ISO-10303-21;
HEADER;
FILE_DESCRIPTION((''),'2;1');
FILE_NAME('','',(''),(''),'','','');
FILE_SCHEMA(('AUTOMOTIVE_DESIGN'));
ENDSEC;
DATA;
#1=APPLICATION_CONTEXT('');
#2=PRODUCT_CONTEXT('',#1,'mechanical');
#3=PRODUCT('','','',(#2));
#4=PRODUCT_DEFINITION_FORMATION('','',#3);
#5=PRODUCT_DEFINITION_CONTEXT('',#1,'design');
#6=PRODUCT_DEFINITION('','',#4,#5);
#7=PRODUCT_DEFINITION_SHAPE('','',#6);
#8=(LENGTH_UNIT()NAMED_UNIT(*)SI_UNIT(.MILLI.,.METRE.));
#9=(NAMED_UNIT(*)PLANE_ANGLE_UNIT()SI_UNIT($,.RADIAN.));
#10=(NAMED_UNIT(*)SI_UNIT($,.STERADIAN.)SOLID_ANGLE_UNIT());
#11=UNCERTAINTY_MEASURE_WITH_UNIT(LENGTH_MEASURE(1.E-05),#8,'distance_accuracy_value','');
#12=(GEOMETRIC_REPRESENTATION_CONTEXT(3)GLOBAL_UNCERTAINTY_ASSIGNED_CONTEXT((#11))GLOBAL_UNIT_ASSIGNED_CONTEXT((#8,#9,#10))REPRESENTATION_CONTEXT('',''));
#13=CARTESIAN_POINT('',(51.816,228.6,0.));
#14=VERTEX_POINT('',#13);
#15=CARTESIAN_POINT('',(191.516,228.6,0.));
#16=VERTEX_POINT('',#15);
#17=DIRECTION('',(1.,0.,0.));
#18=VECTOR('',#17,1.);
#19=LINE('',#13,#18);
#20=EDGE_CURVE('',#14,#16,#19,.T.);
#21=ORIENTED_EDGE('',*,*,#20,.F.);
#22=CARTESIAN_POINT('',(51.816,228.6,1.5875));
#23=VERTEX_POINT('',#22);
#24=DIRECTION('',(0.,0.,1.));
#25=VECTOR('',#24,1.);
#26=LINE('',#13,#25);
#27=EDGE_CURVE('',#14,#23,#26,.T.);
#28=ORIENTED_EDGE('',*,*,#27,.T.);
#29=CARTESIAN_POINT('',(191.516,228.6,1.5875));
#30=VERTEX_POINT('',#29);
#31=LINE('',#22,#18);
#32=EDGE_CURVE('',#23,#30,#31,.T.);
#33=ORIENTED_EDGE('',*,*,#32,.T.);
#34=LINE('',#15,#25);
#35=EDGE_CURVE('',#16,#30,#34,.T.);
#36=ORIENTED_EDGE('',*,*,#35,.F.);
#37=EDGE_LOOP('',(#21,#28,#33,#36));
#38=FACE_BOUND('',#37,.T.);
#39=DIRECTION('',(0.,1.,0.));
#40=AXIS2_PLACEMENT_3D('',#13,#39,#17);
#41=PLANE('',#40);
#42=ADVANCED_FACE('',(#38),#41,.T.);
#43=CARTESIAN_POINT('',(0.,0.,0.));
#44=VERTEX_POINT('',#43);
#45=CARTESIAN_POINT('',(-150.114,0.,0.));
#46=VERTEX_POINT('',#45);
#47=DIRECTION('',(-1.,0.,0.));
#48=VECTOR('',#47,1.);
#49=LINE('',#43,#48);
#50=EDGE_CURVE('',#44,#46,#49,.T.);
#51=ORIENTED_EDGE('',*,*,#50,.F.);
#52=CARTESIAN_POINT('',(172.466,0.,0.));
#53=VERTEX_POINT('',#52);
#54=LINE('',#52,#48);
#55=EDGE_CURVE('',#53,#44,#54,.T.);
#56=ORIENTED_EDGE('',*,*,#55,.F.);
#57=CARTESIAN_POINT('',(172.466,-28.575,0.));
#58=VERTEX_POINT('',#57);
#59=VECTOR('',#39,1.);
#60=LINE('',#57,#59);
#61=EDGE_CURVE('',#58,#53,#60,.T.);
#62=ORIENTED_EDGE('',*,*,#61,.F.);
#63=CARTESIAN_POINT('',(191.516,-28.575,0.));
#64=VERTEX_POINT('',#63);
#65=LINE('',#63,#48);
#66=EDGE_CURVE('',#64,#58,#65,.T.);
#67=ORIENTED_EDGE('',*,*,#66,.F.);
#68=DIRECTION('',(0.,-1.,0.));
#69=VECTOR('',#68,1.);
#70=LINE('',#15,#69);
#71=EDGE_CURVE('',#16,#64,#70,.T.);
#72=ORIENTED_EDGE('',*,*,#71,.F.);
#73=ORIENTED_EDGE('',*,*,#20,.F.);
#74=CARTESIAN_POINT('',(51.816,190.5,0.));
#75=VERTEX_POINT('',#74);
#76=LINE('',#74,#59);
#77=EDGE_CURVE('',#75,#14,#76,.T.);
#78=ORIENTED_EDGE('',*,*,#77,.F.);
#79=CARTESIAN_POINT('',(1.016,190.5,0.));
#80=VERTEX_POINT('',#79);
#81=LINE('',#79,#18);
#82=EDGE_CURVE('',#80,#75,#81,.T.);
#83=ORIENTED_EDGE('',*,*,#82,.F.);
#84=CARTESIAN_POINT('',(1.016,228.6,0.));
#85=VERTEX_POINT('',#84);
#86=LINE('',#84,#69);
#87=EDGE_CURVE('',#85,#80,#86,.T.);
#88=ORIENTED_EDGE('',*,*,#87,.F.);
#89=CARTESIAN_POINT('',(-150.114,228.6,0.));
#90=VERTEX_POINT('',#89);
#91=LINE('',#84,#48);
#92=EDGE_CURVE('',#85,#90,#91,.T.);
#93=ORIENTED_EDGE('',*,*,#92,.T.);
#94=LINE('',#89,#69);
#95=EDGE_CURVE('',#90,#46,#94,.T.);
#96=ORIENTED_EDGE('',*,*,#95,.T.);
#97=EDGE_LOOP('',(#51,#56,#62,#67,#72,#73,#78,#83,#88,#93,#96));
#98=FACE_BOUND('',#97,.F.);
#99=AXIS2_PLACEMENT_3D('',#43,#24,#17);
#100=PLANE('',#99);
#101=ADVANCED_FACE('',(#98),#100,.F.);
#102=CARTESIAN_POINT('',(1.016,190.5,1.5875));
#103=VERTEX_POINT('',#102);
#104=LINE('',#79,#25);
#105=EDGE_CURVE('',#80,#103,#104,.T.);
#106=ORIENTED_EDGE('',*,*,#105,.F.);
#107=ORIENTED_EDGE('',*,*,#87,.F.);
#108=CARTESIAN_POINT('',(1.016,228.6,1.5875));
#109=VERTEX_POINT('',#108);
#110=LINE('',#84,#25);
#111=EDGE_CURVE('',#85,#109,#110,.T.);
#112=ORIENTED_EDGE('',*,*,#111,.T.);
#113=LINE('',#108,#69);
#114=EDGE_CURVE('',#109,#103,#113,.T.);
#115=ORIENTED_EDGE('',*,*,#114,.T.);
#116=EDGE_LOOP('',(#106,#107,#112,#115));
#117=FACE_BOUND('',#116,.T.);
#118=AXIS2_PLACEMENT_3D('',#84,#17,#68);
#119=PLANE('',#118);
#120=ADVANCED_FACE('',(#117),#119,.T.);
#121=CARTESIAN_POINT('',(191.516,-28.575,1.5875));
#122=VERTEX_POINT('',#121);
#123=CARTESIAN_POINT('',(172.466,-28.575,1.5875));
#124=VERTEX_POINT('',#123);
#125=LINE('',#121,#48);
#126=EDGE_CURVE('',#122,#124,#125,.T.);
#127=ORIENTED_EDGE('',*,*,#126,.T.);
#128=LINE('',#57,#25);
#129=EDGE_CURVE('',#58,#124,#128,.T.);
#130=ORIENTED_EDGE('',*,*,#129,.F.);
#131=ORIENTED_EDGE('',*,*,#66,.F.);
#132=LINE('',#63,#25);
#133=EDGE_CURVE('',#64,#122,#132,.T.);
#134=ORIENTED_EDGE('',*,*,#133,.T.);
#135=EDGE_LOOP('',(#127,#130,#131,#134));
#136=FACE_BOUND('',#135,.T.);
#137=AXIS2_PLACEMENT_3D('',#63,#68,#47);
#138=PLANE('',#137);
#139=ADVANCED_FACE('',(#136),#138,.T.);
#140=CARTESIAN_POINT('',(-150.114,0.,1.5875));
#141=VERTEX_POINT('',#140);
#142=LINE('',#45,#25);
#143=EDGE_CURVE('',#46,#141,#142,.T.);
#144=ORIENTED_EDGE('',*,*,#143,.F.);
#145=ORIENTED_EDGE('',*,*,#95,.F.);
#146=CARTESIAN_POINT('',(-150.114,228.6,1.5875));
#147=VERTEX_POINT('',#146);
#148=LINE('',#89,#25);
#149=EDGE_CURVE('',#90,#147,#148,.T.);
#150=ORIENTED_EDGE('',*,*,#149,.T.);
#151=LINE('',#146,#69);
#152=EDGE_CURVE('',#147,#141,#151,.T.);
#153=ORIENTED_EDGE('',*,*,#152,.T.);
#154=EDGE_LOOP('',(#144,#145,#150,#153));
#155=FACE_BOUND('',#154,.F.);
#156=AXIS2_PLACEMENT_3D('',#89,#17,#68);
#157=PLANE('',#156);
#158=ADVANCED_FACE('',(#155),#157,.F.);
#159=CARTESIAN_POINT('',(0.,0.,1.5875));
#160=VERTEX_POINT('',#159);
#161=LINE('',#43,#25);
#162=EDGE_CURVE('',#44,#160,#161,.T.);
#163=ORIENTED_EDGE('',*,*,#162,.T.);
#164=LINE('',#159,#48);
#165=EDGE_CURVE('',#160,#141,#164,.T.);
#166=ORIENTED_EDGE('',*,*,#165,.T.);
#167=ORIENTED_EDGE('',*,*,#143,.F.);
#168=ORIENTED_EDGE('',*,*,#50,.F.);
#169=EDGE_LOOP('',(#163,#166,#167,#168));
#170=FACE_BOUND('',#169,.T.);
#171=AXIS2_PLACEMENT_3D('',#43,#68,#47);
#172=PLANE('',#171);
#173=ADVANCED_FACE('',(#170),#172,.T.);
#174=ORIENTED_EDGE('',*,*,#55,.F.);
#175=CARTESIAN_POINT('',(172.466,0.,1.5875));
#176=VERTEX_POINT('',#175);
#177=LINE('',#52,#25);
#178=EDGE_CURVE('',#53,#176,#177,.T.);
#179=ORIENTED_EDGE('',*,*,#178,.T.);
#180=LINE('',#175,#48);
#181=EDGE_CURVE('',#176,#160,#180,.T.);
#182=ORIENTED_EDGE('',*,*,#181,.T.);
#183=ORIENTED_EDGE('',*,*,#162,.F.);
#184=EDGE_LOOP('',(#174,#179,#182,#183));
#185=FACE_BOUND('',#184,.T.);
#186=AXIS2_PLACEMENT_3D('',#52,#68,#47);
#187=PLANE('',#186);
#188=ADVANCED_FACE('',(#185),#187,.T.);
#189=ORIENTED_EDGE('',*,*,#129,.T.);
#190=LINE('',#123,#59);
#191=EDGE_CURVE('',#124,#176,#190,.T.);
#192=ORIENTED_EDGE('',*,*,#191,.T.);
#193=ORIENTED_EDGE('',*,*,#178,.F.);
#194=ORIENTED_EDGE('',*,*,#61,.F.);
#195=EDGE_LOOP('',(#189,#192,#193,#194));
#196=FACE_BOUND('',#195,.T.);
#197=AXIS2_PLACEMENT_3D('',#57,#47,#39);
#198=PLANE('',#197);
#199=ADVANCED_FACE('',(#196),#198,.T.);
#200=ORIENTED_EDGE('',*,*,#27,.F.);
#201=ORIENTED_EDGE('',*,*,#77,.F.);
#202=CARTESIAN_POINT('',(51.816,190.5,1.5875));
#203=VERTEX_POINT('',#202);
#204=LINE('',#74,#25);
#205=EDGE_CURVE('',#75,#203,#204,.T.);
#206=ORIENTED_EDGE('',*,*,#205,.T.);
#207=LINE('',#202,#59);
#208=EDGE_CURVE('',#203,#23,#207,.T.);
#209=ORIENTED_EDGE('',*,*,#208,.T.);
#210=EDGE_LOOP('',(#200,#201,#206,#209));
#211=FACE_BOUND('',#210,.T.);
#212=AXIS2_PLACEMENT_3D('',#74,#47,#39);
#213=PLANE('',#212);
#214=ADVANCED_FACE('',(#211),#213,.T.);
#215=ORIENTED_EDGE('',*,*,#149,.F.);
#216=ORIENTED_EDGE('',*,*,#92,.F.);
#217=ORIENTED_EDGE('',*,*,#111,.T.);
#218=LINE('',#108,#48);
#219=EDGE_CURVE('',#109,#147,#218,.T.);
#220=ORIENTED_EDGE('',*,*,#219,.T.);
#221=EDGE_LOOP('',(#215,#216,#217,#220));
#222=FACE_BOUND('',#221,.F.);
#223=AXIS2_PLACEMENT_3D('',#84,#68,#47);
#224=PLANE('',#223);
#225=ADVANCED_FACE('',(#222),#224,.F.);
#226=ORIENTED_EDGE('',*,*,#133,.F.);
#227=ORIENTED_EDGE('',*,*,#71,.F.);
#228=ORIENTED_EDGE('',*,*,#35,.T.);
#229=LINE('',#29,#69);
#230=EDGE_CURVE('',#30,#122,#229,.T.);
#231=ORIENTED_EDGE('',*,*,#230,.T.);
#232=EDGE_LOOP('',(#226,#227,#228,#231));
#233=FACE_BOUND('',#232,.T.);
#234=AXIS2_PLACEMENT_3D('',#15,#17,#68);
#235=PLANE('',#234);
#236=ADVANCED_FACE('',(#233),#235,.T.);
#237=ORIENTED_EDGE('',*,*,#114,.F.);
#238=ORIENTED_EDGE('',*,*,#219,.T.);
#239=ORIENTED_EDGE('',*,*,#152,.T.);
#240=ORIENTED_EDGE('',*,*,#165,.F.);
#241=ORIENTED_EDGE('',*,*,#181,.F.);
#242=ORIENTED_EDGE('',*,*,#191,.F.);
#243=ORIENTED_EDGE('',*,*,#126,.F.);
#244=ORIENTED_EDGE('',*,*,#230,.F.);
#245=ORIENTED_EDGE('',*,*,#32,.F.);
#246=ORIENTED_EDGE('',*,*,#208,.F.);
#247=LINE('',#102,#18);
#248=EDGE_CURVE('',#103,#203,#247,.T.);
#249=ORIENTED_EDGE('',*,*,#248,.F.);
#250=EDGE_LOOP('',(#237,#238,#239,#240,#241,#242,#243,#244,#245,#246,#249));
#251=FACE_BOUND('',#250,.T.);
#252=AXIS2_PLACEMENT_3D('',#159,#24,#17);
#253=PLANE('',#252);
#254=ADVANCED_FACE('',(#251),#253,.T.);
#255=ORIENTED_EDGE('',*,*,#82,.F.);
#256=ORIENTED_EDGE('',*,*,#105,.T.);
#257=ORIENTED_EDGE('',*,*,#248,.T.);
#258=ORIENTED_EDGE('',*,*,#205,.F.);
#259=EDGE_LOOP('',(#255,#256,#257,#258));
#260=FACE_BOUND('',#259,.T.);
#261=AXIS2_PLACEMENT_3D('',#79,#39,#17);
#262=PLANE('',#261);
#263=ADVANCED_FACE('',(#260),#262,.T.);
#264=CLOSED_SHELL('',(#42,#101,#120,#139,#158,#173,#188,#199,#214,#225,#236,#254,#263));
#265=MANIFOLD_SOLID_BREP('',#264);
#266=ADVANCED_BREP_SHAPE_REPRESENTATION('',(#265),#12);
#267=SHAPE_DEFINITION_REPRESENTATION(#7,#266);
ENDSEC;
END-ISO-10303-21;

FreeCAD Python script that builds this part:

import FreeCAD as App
import Part
import Sketcher
Q = App.Units.Quantity


def add_polygon(sketch, points):
    """Adds a closed chain of lines whose ends are joined by coincident constraints."""
    first, n = sketch.GeometryCount, len(points)
    for a, b in zip(points, points[1:] + points[:1]):
        sketch.addGeometry(Part.LineSegment(App.Vector(*a, 0), App.Vector(*b, 0)), False)
    for i in range(n):
        sketch.addConstraint(Sketcher.Constraint("Coincident", first + i, 2, first + (i + 1) % n, 1))

doc = App.newDocument("Part")
body = doc.addObject("PartDesign::Body", "Body")

# Sketch on XY plane
sketch1 = body.newObject("Sketcher::SketchObject", "Sketch")
sketch1.AttachmentSupport = (doc.getObject("XY_Plane"), [""])
sketch1.MapMode = "FlatFace"
add_polygon(sketch1, [(-150.114, 0), (172.466, 0), (172.466, -28.575), (191.516, -28.575), (191.516, 228.6), (51.816, 228.6), (51.816, 190.5), (1.016, 190.5), (1.016, 228.6), (-150.114, 228.6)])  # lines 0-9
sketch1.addConstraint([
    Sketcher.Constraint("Horizontal", 0),
    Sketcher.Constraint("Vertical", 1),
    Sketcher.Constraint("Horizontal", 2),
    Sketcher.Constraint("Vertical", 3),
    Sketcher.Constraint("Horizontal", 4),
    Sketcher.Constraint("Vertical", 5),
    Sketcher.Constraint("Horizontal", 6),
    Sketcher.Constraint("Vertical", 7),
    Sketcher.Constraint("Horizontal", 8),
    Sketcher.Constraint("Vertical", 9),
    Sketcher.Constraint("PointOnObject", 0, 2, -1),
    Sketcher.Constraint("Horizontal", 4, 2, 7, 2),
    Sketcher.Constraint("DistanceX", 6, 2, 6, 1, Q("2 in")),
    Sketcher.Constraint("DistanceY", 9, 2, 9, 1, Q("9 in")),
    Sketcher.Constraint("DistanceX", 4, 2, 4, 1, Q("5.5 in")),
    Sketcher.Constraint("DistanceY", 5, 2, 5, 1, Q("1.5 in")),
    Sketcher.Constraint("DistanceX", 2, 1, 2, 2, Q("0.75 in")),
    Sketcher.Constraint("DistanceX", 8, 2, 8, 1, Q("5.95 in")),
    Sketcher.Constraint("DistanceY", 3, 1, 3, 2, Q("10.125 in")),
    Sketcher.Constraint("DistanceX", 8, 2, -1, 1, Q("5.91 in")),
])
pad1 = body.newObject("PartDesign::Pad", "Pad")
pad1.Profile = sketch1
pad1.Length = Q("0.0625 in")

doc.recompute()
